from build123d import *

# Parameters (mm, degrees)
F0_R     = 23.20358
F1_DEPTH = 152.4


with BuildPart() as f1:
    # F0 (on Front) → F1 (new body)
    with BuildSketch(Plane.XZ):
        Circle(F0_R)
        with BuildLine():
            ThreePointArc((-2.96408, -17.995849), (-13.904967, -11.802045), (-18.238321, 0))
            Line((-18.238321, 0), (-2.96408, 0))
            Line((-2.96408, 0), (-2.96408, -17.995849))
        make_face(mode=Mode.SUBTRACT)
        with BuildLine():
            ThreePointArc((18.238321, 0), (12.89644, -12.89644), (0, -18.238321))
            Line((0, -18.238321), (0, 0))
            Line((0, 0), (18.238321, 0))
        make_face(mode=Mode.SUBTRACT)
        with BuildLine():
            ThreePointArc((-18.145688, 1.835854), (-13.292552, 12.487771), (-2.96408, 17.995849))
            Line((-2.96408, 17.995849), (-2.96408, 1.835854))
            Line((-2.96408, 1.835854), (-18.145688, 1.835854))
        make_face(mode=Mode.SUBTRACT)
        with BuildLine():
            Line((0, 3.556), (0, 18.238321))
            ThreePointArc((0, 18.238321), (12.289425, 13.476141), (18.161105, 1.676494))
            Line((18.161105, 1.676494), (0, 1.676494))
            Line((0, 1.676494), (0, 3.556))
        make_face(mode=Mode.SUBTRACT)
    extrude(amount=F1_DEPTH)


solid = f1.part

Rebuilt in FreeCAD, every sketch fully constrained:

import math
import FreeCAD as App
import Part
import Sketcher
Q = App.Units.Quantity

doc = App.newDocument("Part")
body = doc.addObject("PartDesign::Body", "Body")

sketch1 = doc.addObject("Sketcher::SketchObject", "Sketch")
body.addObject(sketch1)
sketch1.AttachmentSupport = (doc.XZ_Plane, [""])
sketch1.MapMode = "FlatFace"
sketch1.addGeometry(Part.Circle(App.Vector(0, 0, 0), App.Vector(0, 0, 1), 23.20358), False)
sketch1.addGeometry(Part.LineSegment(App.Vector(-2.96408, 0, 0), App.Vector(-2.96408, -17.995849, 0)), False)
sketch1.addGeometry(Part.ArcOfCircle(Part.Circle(App.Vector(-0.000002, -0.000002, 0), App.Vector(0, 0, 1), 18.238319), math.radians(179.999995), math.radians(260.646847)), False)
sketch1.addGeometry(Part.LineSegment(App.Vector(-18.238321, 0, 0), App.Vector(-2.96408, 0, 0)), False)
sketch1.addGeometry(Part.LineSegment(App.Vector(0, 0, 0), App.Vector(18.238321, 0, 0)), False)
sketch1.addGeometry(Part.ArcOfCircle(Part.Circle(App.Vector(-0.000002, 0.000002, 0), App.Vector(0, 0, 1), 18.238323), math.radians(-89.999995), math.radians(-0.000005)), False)
sketch1.addGeometry(Part.LineSegment(App.Vector(0, -18.238321, 0), App.Vector(0, 0, 0)), False)
sketch1.addGeometry(Part.LineSegment(App.Vector(-2.96408, 1.835854, 0), App.Vector(-18.145688, 1.835854, 0)), False)
sketch1.addGeometry(Part.ArcOfCircle(Part.Circle(App.Vector(-0.000001, 0.000001, 0), App.Vector(0, 0, 1), 18.23832), math.radians(99.353156), math.radians(174.222874)), False)
sketch1.addGeometry(Part.LineSegment(App.Vector(-2.96408, 17.995849, 0), App.Vector(-2.96408, 1.835854, 0)), False)
sketch1.addGeometry(Part.LineSegment(App.Vector(0, 1.676494, 0), App.Vector(0, 18.238321, 0)), False)
sketch1.addGeometry(Part.ArcOfCircle(Part.Circle(App.Vector(-0.000001, -0.000001, 0), App.Vector(0, 0, 1), 18.238322), math.radians(5.274164), math.radians(89.999997)), False)
sketch1.addGeometry(Part.LineSegment(App.Vector(18.161105, 1.676494, 0), App.Vector(0, 1.676494, 0)), False)
sketch1.addConstraint(Sketcher.Constraint("Coincident", 1, 2, 2, 2))
sketch1.addConstraint(Sketcher.Constraint("Coincident", 2, 1, 3, 1))
sketch1.addConstraint(Sketcher.Constraint("Coincident", 3, 2, 1, 1))
sketch1.addConstraint(Sketcher.Constraint("Coincident", 4, 2, 5, 2))
sketch1.addConstraint(Sketcher.Constraint("Coincident", 5, 1, 6, 1))
sketch1.addConstraint(Sketcher.Constraint("Coincident", 6, 2, 4, 1))
sketch1.addConstraint(Sketcher.Constraint("Coincident", 7, 2, 8, 2))
sketch1.addConstraint(Sketcher.Constraint("Coincident", 8, 1, 9, 1))
sketch1.addConstraint(Sketcher.Constraint("Coincident", 9, 2, 7, 1))
sketch1.addConstraint(Sketcher.Constraint("Coincident", 10, 2, 11, 2))
sketch1.addConstraint(Sketcher.Constraint("Coincident", 11, 1, 12, 1))
sketch1.addConstraint(Sketcher.Constraint("Coincident", 12, 2, 10, 1))
sketch1.addConstraint(Sketcher.Constraint("Vertical", 1))
sketch1.addConstraint(Sketcher.Constraint("Horizontal", 3))
sketch1.addConstraint(Sketcher.Constraint("Horizontal", 4))
sketch1.addConstraint(Sketcher.Constraint("Vertical", 6))
sketch1.addConstraint(Sketcher.Constraint("Horizontal", 7))
sketch1.addConstraint(Sketcher.Constraint("Vertical", 9))
sketch1.addConstraint(Sketcher.Constraint("Vertical", 10))
sketch1.addConstraint(Sketcher.Constraint("Horizontal", 12))
sketch1.addConstraint(Sketcher.Constraint("Coincident", 0, 3, -1, 1))
sketch1.addConstraint(Sketcher.Constraint("Coincident", 2, 3, -1, 1))
sketch1.addConstraint(Sketcher.Constraint("Coincident", 5, 3, -1, 1))
sketch1.addConstraint(Sketcher.Constraint("Coincident", 8, 3, -1, 1))
sketch1.addConstraint(Sketcher.Constraint("Coincident", 11, 3, -1, 1))
sketch1.addConstraint(Sketcher.Constraint("Coincident", 6, 2, -1, 1))
sketch1.addConstraint(Sketcher.Constraint("PointOnObject", 2, 1, -1))
sketch1.addConstraint(Sketcher.Constraint("PointOnObject", 10, 2, -2))
sketch1.addConstraint(Sketcher.Constraint("Diameter", 0, 46.40716))
sketch1.addConstraint(Sketcher.Constraint("Radius", 2, 18.238319))
sketch1.addConstraint(Sketcher.Constraint("Radius", 8, 18.23832))
sketch1.addConstraint(Sketcher.Constraint("Radius", 5, 18.238323))
sketch1.addConstraint(Sketcher.Constraint("Radius", 11, 18.238322))
sketch1.addConstraint(Sketcher.Constraint("DistanceX", 3, 1, 3, 2, 15.274241))
sketch1.addConstraint(Sketcher.Constraint("DistanceX", 7, 2, 7, 1, 15.181608))
sketch1.addConstraint(Sketcher.Constraint("DistanceX", 12, 2, 12, 1, 18.161105))
sketch1.addConstraint(Sketcher.Constraint("DistanceY", 9, 2, 9, 1, 16.159995))
pad1 = doc.addObject("PartDesign::Pad", "Pad")
body.addObject(pad1)
pad1.Profile = sketch1
pad1.Length = Q("6 in")

doc.recompute()
